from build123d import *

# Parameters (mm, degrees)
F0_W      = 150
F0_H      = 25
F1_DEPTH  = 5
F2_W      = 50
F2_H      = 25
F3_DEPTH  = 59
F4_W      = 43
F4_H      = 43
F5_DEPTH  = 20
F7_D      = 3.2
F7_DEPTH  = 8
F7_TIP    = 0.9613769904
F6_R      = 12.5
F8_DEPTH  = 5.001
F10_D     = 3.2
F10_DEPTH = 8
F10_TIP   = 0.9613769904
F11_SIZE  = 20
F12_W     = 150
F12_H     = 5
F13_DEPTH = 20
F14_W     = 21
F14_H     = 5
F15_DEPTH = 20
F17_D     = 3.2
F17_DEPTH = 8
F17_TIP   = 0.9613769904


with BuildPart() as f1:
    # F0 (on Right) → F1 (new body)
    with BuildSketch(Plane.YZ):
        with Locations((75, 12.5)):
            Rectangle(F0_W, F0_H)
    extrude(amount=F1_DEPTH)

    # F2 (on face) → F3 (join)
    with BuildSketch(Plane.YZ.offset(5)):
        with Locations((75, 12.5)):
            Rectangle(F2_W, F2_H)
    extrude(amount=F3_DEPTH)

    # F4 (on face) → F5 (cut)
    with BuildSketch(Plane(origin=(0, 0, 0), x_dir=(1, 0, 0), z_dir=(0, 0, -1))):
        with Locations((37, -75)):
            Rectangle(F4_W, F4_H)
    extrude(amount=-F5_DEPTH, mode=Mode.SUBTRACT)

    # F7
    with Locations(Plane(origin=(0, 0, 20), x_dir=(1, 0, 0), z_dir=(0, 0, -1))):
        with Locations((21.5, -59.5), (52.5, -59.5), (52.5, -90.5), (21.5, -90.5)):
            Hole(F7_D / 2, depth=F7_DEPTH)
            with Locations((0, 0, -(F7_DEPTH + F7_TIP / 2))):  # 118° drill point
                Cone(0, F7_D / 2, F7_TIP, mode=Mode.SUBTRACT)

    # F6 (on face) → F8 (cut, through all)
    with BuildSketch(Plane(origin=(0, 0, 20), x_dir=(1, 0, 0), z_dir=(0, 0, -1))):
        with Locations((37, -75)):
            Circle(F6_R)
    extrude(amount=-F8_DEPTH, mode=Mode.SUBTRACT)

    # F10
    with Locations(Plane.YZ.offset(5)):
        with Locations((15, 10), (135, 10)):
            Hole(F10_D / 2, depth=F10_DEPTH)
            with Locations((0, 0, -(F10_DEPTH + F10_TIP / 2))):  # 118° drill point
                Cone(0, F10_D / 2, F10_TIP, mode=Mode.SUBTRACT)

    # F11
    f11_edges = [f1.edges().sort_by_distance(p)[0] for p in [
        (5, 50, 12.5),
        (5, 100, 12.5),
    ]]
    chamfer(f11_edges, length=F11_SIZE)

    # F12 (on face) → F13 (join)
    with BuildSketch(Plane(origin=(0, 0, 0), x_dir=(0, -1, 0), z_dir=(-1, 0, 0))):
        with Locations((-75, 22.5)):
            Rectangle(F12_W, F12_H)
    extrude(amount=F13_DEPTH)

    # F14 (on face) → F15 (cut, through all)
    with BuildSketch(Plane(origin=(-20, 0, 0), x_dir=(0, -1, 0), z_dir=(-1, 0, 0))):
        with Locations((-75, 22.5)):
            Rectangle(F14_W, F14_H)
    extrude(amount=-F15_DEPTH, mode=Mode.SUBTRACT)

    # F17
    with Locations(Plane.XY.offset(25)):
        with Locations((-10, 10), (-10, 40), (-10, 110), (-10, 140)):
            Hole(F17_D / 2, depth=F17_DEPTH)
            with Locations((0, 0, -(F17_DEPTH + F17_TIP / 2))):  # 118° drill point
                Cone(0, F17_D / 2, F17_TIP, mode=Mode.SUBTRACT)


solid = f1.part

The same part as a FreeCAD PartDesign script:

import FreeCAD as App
import Part
import Sketcher
from FreeCAD import Vector


def edges_at(feature, points):
    """Names of the edges that pass closest to the given points."""
    edges = feature.Shape.Edges
    near = lambda p: min(range(len(edges)), key=lambda i: edges[i].distToShape(Part.Vertex(*p))[0])
    return sorted({f"Edge{near(p) + 1}" for p in points})

doc = App.newDocument("Part")
body = doc.addObject("PartDesign::Body", "Body")

sketch1 = doc.addObject("Sketcher::SketchObject", "Sketch")
body.addObject(sketch1)
sketch1.AttachmentSupport = (doc.YZ_Plane, [""])
sketch1.MapMode = "FlatFace"
sketch1.addGeometry(Part.LineSegment(Vector(0, 25, 0), Vector(0, 0, 0)), False)
sketch1.addGeometry(Part.LineSegment(Vector(0, 0, 0), Vector(150, 0, 0)), False)
sketch1.addGeometry(Part.LineSegment(Vector(150, 0, 0), Vector(150, 25, 0)), False)
sketch1.addGeometry(Part.LineSegment(Vector(150, 25, 0), Vector(0, 25, 0)), False)
sketch1.addConstraint(Sketcher.Constraint("Coincident", 0, 2, 1, 1))
sketch1.addConstraint(Sketcher.Constraint("Coincident", 1, 2, 2, 1))
sketch1.addConstraint(Sketcher.Constraint("Coincident", 2, 2, 3, 1))
sketch1.addConstraint(Sketcher.Constraint("Coincident", 3, 2, 0, 1))
sketch1.addConstraint(Sketcher.Constraint("Vertical", 0))
sketch1.addConstraint(Sketcher.Constraint("Horizontal", 1))
sketch1.addConstraint(Sketcher.Constraint("Vertical", 2))
sketch1.addConstraint(Sketcher.Constraint("Horizontal", 3))
sketch1.addConstraint(Sketcher.Constraint("Coincident", 0, 2, -1, 1))
sketch1.addConstraint(Sketcher.Constraint("DistanceX", 1, 1, 1, 2, 150.0))
sketch1.addConstraint(Sketcher.Constraint("DistanceY", 0, 2, 0, 1, 25.0))
pad1 = doc.addObject("PartDesign::Pad", "Pad")
body.addObject(pad1)
pad1.Profile = sketch1
pad1.Length = 5

sketch2 = doc.addObject("Sketcher::SketchObject", "Sketch001")
body.addObject(sketch2)
sketch2.AttachmentSupport = (doc.YZ_Plane, [""])
sketch2.MapMode = "FlatFace"
sketch2.AttachmentOffset = App.Placement(Vector(0, 0, 5), App.Rotation())
sketch2.addGeometry(Part.LineSegment(Vector(50, 25, 0), Vector(50, 0, 0)), False)
sketch2.addGeometry(Part.LineSegment(Vector(50, 0, 0), Vector(100, 0, 0)), False)
sketch2.addGeometry(Part.LineSegment(Vector(100, 0, 0), Vector(100, 25, 0)), False)
sketch2.addGeometry(Part.LineSegment(Vector(100, 25, 0), Vector(50, 25, 0)), False)
sketch2.addConstraint(Sketcher.Constraint("Coincident", 0, 2, 1, 1))
sketch2.addConstraint(Sketcher.Constraint("Coincident", 1, 2, 2, 1))
sketch2.addConstraint(Sketcher.Constraint("Coincident", 2, 2, 3, 1))
sketch2.addConstraint(Sketcher.Constraint("Coincident", 3, 2, 0, 1))
sketch2.addConstraint(Sketcher.Constraint("Vertical", 0))
sketch2.addConstraint(Sketcher.Constraint("Horizontal", 1))
sketch2.addConstraint(Sketcher.Constraint("Vertical", 2))
sketch2.addConstraint(Sketcher.Constraint("Horizontal", 3))
sketch2.addConstraint(Sketcher.Constraint("PointOnObject", 0, 2, -1))
sketch2.addConstraint(Sketcher.Constraint("DistanceX", 1, 1, 1, 2, 50.0))
sketch2.addConstraint(Sketcher.Constraint("DistanceY", 0, 2, 0, 1, 25.0))
sketch2.addConstraint(Sketcher.Constraint("DistanceX", -1, 1, 0, 2, 50.0))
pad2 = doc.addObject("PartDesign::Pad", "Pad001")
body.addObject(pad2)
pad2.Profile = sketch2
pad2.Length = 59

sketch3 = doc.addObject("Sketcher::SketchObject", "Sketch002")
body.addObject(sketch3)
sketch3.AttachmentSupport = (doc.XY_Plane, [""])
sketch3.MapMode = "FlatFace"
sketch3.addGeometry(Part.LineSegment(Vector(16, 54, 0), Vector(16, 96, 0)), False)
sketch3.addGeometry(Part.LineSegment(Vector(16, 96, 0), Vector(58, 96, 0)), False)
sketch3.addGeometry(Part.LineSegment(Vector(58, 96, 0), Vector(58, 54, 0)), False)
sketch3.addGeometry(Part.LineSegment(Vector(58, 54, 0), Vector(16, 54, 0)), False)
sketch3.addConstraint(Sketcher.Constraint("Coincident", 0, 2, 1, 1))
sketch3.addConstraint(Sketcher.Constraint("Coincident", 1, 2, 2, 1))
sketch3.addConstraint(Sketcher.Constraint("Coincident", 2, 2, 3, 1))
sketch3.addConstraint(Sketcher.Constraint("Coincident", 3, 2, 0, 1))
sketch3.addConstraint(Sketcher.Constraint("Vertical", 0))
sketch3.addConstraint(Sketcher.Constraint("Horizontal", 1))
sketch3.addConstraint(Sketcher.Constraint("Vertical", 2))
sketch3.addConstraint(Sketcher.Constraint("Horizontal", 3))
sketch3.addConstraint(Sketcher.Constraint("Equal", 3, 0))
sketch3.addConstraint(Sketcher.Constraint("DistanceX", 1, 1, 1, 2, 43.0))
sketch3.addConstraint(Sketcher.Constraint("DistanceX", -1, 1, 0, 2, 15.5))
sketch3.addConstraint(Sketcher.Constraint("DistanceY", -1, 1, 0, 2, 96.5))
pocket1 = doc.addObject("PartDesign::Pocket", "Pocket")
body.addObject(pocket1)
pocket1.Profile = sketch3
pocket1.Length = 20
pocket1.Reversed = True

sketch4 = doc.addObject("Sketcher::SketchObject", "Sketch003")
body.addObject(sketch4)
sketch4.AttachmentSupport = (doc.XY_Plane, [""])
sketch4.MapMode = "FlatFace"
sketch4.AttachmentOffset = App.Placement(Vector(0, 0, 20), App.Rotation())
sketch4.addGeometry(Part.Circle(Vector(21.5, 59.5, 0), Vector(0, 0, 1), 1.6), False)
sketch4.addGeometry(Part.Circle(Vector(52.5, 59.5, 0), Vector(0, 0, 1), 1.6), False)
sketch4.addGeometry(Part.Circle(Vector(52.5, 90.5, 0), Vector(0, 0, 1), 1.6), False)
sketch4.addGeometry(Part.Circle(Vector(21.5, 90.5, 0), Vector(0, 0, 1), 1.6), False)
sketch4.addConstraint(Sketcher.Constraint("Equal", 0, 1))
sketch4.addConstraint(Sketcher.Constraint("Equal", 1, 2))
sketch4.addConstraint(Sketcher.Constraint("Equal", 2, 3))
sketch4.addConstraint(Sketcher.Constraint("Horizontal", 0, 3, 1, 3))
sketch4.addConstraint(Sketcher.Constraint("Horizontal", 2, 3, 3, 3))
sketch4.addConstraint(Sketcher.Constraint("Vertical", 1, 3, 2, 3))
sketch4.addConstraint(Sketcher.Constraint("Vertical", 0, 3, 3, 3))
sketch4.addConstraint(Sketcher.Constraint("Diameter", 0, 3.2))
sketch4.addConstraint(Sketcher.Constraint("DistanceX", 0, 3, 1, 3, 31.0))
sketch4.addConstraint(Sketcher.Constraint("DistanceY", 1, 3, 2, 3, 31.0))
sketch4.addConstraint(Sketcher.Constraint("DistanceX", -1, 1, 0, 3, 21.5))
sketch4.addConstraint(Sketcher.Constraint("DistanceY", -1, 1, 0, 3, 59.5))
doc.recompute()
hole = doc.addObject("PartDesign::Hole", "Hole")
body.addObject(hole)
hole.Profile = sketch4
hole.ThreadType = "None"
hole.Diameter = 3.2
hole.DepthType = "Dimension"
hole.Depth = 8
hole.DrillPoint = "Angled"
hole.DrillPointAngle = 118
hole.Reversed = True

sketch5 = doc.addObject("Sketcher::SketchObject", "Sketch004")
body.addObject(sketch5)
sketch5.AttachmentSupport = (doc.XY_Plane, [""])
sketch5.MapMode = "FlatFace"
sketch5.AttachmentOffset = App.Placement(Vector(0, 0, 20), App.Rotation())
sketch5.addGeometry(Part.Circle(Vector(37, 75, 0), Vector(0, 0, 1), 12), False)
sketch5.addConstraint(Sketcher.Constraint("Diameter", 0, 25.0))
sketch5.addConstraint(Sketcher.Constraint("DistanceX", -1, 1, 0, 3, 37.0))
sketch5.addConstraint(Sketcher.Constraint("DistanceY", -1, 1, 0, 3, 75.0))
pocket2 = doc.addObject("PartDesign::Pocket", "Pocket001")
body.addObject(pocket2)
pocket2.Profile = sketch5
pocket2.Type = "ThroughAll"
pocket2.Reversed = True

sketch6 = doc.addObject("Sketcher::SketchObject", "Sketch005")
body.addObject(sketch6)
sketch6.AttachmentSupport = (doc.YZ_Plane, [""])
sketch6.MapMode = "FlatFace"
sketch6.AttachmentOffset = App.Placement(Vector(0, 0, 5), App.Rotation())
sketch6.addGeometry(Part.Circle(Vector(15, 10, 0), Vector(0, 0, 1), 1.6), False)
sketch6.addGeometry(Part.Circle(Vector(135, 10, 0), Vector(0, 0, 1), 1.6), False)
sketch6.addConstraint(Sketcher.Constraint("Equal", 0, 1))
sketch6.addConstraint(Sketcher.Constraint("Horizontal", 0, 3, 1, 3))
sketch6.addConstraint(Sketcher.Constraint("Diameter", 0, 3.2))
sketch6.addConstraint(Sketcher.Constraint("DistanceX", -1, 1, 0, 3, 15.0))
sketch6.addConstraint(Sketcher.Constraint("DistanceY", -1, 1, 0, 3, 10.0))
sketch6.addConstraint(Sketcher.Constraint("DistanceX", -1, 1, 1, 3, 135.0))
doc.recompute()
hole2 = doc.addObject("PartDesign::Hole", "Hole001")
body.addObject(hole2)
hole2.Profile = sketch6
hole2.ThreadType = "None"
hole2.Diameter = 3.2
hole2.DepthType = "Dimension"
hole2.Depth = 8
hole2.DrillPoint = "Angled"
hole2.DrillPointAngle = 118
doc.recompute()

chamfer = doc.addObject("PartDesign::Chamfer", "Chamfer")
body.addObject(chamfer)
chamfer.Base = (hole2, edges_at(hole2, [(5, 50, 12.5), (5, 100, 12.5)]))
chamfer.Size = 20

sketch7 = doc.addObject("Sketcher::SketchObject", "Sketch006")
body.addObject(sketch7)
sketch7.AttachmentSupport = (doc.YZ_Plane, [""])
sketch7.MapMode = "FlatFace"
sketch7.addGeometry(Part.LineSegment(Vector(150, 25, 0), Vector(150, 20, 0)), False)
sketch7.addGeometry(Part.LineSegment(Vector(150, 20, 0), Vector(0, 20, 0)), False)
sketch7.addGeometry(Part.LineSegment(Vector(0, 20, 0), Vector(0, 25, 0)), False)
sketch7.addGeometry(Part.LineSegment(Vector(0, 25, 0), Vector(150, 25, 0)), False)
sketch7.addConstraint(Sketcher.Constraint("Coincident", 0, 2, 1, 1))
sketch7.addConstraint(Sketcher.Constraint("Coincident", 1, 2, 2, 1))
sketch7.addConstraint(Sketcher.Constraint("Coincident", 2, 2, 3, 1))
sketch7.addConstraint(Sketcher.Constraint("Coincident", 3, 2, 0, 1))
sketch7.addConstraint(Sketcher.Constraint("Vertical", 0))
sketch7.addConstraint(Sketcher.Constraint("Horizontal", 1))
sketch7.addConstraint(Sketcher.Constraint("Vertical", 2))
sketch7.addConstraint(Sketcher.Constraint("Horizontal", 3))
sketch7.addConstraint(Sketcher.Constraint("PointOnObject", 1, 2, -2))
sketch7.addConstraint(Sketcher.Constraint("DistanceX", 1, 2, 1, 1, 150.0))
sketch7.addConstraint(Sketcher.Constraint("DistanceY", 0, 2, 0, 1, 5.0))
sketch7.addConstraint(Sketcher.Constraint("DistanceY", -1, 1, 0, 2, 20.0))
pad3 = doc.addObject("PartDesign::Pad", "Pad002")
body.addObject(pad3)
pad3.Profile = sketch7
pad3.Length = 20
pad3.Reversed = True

sketch8 = doc.addObject("Sketcher::SketchObject", "Sketch007")
body.addObject(sketch8)
sketch8.AttachmentSupport = (doc.YZ_Plane, [""])
sketch8.MapMode = "FlatFace"
sketch8.AttachmentOffset = App.Placement(Vector(0, 0, -20), App.Rotation())
sketch8.addGeometry(Part.LineSegment(Vector(86, 25, 0), Vector(86, 20, 0)), False)
sketch8.addGeometry(Part.LineSegment(Vector(86, 20, 0), Vector(64, 20, 0)), False)
sketch8.addGeometry(Part.LineSegment(Vector(64, 20, 0), Vector(64, 25, 0)), False)
sketch8.addGeometry(Part.LineSegment(Vector(64, 25, 0), Vector(86, 25, 0)), False)
sketch8.addConstraint(Sketcher.Constraint("Coincident", 0, 2, 1, 1))
sketch8.addConstraint(Sketcher.Constraint("Coincident", 1, 2, 2, 1))
sketch8.addConstraint(Sketcher.Constraint("Coincident", 2, 2, 3, 1))
sketch8.addConstraint(Sketcher.Constraint("Coincident", 3, 2, 0, 1))
sketch8.addConstraint(Sketcher.Constraint("Vertical", 0))
sketch8.addConstraint(Sketcher.Constraint("Horizontal", 1))
sketch8.addConstraint(Sketcher.Constraint("Vertical", 2))
sketch8.addConstraint(Sketcher.Constraint("Horizontal", 3))
sketch8.addConstraint(Sketcher.Constraint("DistanceX", 1, 2, 1, 1, 21.0))
sketch8.addConstraint(Sketcher.Constraint("DistanceY", 0, 2, 0, 1, 5.0))
sketch8.addConstraint(Sketcher.Constraint("DistanceY", -1, 1, 0, 2, 20.0))
sketch8.addConstraint(Sketcher.Constraint("DistanceX", -1, 1, 0, 2, 85.5))
pocket3 = doc.addObject("PartDesign::Pocket", "Pocket002")
body.addObject(pocket3)
pocket3.Profile = sketch8
pocket3.Length = 20
pocket3.Reversed = True

sketch9 = doc.addObject("Sketcher::SketchObject", "Sketch008")
body.addObject(sketch9)
sketch9.AttachmentSupport = (doc.XY_Plane, [""])
sketch9.MapMode = "FlatFace"
sketch9.AttachmentOffset = App.Placement(Vector(0, 0, 25), App.Rotation())
sketch9.addGeometry(Part.Circle(Vector(-10, 10, 0), Vector(0, 0, 1), 1.6), False)
sketch9.addGeometry(Part.Circle(Vector(-10, 40, 0), Vector(0, 0, 1), 1.6), False)
sketch9.addGeometry(Part.Circle(Vector(-10, 110, 0), Vector(0, 0, 1), 1.6), False)
sketch9.addGeometry(Part.Circle(Vector(-10, 140, 0), Vector(0, 0, 1), 1.6), False)
sketch9.addConstraint(Sketcher.Constraint("Equal", 0, 1))
sketch9.addConstraint(Sketcher.Constraint("Equal", 1, 2))
sketch9.addConstraint(Sketcher.Constraint("Equal", 2, 3))
sketch9.addConstraint(Sketcher.Constraint("Vertical", 0, 3, 1, 3))
sketch9.addConstraint(Sketcher.Constraint("Vertical", 1, 3, 2, 3))
sketch9.addConstraint(Sketcher.Constraint("Vertical", 2, 3, 3, 3))
sketch9.addConstraint(Sketcher.Constraint("Diameter", 0, 3.2))
sketch9.addConstraint(Sketcher.Constraint("DistanceX", 0, 3, -1, 1, 10.0))
sketch9.addConstraint(Sketcher.Constraint("DistanceY", -1, 1, 0, 3, 10.0))
sketch9.addConstraint(Sketcher.Constraint("DistanceY", -1, 1, 1, 3, 40.0))
sketch9.addConstraint(Sketcher.Constraint("DistanceY", -1, 1, 2, 3, 110.0))
sketch9.addConstraint(Sketcher.Constraint("DistanceY", -1, 1, 3, 3, 140.0))
doc.recompute()
hole3 = doc.addObject("PartDesign::Hole", "Hole002")
body.addObject(hole3)
hole3.Profile = sketch9
hole3.ThreadType = "None"
hole3.Diameter = 3.2
hole3.DepthType = "Dimension"
hole3.Depth = 8
hole3.DrillPoint = "Angled"
hole3.DrillPointAngle = 118

doc.recompute()
